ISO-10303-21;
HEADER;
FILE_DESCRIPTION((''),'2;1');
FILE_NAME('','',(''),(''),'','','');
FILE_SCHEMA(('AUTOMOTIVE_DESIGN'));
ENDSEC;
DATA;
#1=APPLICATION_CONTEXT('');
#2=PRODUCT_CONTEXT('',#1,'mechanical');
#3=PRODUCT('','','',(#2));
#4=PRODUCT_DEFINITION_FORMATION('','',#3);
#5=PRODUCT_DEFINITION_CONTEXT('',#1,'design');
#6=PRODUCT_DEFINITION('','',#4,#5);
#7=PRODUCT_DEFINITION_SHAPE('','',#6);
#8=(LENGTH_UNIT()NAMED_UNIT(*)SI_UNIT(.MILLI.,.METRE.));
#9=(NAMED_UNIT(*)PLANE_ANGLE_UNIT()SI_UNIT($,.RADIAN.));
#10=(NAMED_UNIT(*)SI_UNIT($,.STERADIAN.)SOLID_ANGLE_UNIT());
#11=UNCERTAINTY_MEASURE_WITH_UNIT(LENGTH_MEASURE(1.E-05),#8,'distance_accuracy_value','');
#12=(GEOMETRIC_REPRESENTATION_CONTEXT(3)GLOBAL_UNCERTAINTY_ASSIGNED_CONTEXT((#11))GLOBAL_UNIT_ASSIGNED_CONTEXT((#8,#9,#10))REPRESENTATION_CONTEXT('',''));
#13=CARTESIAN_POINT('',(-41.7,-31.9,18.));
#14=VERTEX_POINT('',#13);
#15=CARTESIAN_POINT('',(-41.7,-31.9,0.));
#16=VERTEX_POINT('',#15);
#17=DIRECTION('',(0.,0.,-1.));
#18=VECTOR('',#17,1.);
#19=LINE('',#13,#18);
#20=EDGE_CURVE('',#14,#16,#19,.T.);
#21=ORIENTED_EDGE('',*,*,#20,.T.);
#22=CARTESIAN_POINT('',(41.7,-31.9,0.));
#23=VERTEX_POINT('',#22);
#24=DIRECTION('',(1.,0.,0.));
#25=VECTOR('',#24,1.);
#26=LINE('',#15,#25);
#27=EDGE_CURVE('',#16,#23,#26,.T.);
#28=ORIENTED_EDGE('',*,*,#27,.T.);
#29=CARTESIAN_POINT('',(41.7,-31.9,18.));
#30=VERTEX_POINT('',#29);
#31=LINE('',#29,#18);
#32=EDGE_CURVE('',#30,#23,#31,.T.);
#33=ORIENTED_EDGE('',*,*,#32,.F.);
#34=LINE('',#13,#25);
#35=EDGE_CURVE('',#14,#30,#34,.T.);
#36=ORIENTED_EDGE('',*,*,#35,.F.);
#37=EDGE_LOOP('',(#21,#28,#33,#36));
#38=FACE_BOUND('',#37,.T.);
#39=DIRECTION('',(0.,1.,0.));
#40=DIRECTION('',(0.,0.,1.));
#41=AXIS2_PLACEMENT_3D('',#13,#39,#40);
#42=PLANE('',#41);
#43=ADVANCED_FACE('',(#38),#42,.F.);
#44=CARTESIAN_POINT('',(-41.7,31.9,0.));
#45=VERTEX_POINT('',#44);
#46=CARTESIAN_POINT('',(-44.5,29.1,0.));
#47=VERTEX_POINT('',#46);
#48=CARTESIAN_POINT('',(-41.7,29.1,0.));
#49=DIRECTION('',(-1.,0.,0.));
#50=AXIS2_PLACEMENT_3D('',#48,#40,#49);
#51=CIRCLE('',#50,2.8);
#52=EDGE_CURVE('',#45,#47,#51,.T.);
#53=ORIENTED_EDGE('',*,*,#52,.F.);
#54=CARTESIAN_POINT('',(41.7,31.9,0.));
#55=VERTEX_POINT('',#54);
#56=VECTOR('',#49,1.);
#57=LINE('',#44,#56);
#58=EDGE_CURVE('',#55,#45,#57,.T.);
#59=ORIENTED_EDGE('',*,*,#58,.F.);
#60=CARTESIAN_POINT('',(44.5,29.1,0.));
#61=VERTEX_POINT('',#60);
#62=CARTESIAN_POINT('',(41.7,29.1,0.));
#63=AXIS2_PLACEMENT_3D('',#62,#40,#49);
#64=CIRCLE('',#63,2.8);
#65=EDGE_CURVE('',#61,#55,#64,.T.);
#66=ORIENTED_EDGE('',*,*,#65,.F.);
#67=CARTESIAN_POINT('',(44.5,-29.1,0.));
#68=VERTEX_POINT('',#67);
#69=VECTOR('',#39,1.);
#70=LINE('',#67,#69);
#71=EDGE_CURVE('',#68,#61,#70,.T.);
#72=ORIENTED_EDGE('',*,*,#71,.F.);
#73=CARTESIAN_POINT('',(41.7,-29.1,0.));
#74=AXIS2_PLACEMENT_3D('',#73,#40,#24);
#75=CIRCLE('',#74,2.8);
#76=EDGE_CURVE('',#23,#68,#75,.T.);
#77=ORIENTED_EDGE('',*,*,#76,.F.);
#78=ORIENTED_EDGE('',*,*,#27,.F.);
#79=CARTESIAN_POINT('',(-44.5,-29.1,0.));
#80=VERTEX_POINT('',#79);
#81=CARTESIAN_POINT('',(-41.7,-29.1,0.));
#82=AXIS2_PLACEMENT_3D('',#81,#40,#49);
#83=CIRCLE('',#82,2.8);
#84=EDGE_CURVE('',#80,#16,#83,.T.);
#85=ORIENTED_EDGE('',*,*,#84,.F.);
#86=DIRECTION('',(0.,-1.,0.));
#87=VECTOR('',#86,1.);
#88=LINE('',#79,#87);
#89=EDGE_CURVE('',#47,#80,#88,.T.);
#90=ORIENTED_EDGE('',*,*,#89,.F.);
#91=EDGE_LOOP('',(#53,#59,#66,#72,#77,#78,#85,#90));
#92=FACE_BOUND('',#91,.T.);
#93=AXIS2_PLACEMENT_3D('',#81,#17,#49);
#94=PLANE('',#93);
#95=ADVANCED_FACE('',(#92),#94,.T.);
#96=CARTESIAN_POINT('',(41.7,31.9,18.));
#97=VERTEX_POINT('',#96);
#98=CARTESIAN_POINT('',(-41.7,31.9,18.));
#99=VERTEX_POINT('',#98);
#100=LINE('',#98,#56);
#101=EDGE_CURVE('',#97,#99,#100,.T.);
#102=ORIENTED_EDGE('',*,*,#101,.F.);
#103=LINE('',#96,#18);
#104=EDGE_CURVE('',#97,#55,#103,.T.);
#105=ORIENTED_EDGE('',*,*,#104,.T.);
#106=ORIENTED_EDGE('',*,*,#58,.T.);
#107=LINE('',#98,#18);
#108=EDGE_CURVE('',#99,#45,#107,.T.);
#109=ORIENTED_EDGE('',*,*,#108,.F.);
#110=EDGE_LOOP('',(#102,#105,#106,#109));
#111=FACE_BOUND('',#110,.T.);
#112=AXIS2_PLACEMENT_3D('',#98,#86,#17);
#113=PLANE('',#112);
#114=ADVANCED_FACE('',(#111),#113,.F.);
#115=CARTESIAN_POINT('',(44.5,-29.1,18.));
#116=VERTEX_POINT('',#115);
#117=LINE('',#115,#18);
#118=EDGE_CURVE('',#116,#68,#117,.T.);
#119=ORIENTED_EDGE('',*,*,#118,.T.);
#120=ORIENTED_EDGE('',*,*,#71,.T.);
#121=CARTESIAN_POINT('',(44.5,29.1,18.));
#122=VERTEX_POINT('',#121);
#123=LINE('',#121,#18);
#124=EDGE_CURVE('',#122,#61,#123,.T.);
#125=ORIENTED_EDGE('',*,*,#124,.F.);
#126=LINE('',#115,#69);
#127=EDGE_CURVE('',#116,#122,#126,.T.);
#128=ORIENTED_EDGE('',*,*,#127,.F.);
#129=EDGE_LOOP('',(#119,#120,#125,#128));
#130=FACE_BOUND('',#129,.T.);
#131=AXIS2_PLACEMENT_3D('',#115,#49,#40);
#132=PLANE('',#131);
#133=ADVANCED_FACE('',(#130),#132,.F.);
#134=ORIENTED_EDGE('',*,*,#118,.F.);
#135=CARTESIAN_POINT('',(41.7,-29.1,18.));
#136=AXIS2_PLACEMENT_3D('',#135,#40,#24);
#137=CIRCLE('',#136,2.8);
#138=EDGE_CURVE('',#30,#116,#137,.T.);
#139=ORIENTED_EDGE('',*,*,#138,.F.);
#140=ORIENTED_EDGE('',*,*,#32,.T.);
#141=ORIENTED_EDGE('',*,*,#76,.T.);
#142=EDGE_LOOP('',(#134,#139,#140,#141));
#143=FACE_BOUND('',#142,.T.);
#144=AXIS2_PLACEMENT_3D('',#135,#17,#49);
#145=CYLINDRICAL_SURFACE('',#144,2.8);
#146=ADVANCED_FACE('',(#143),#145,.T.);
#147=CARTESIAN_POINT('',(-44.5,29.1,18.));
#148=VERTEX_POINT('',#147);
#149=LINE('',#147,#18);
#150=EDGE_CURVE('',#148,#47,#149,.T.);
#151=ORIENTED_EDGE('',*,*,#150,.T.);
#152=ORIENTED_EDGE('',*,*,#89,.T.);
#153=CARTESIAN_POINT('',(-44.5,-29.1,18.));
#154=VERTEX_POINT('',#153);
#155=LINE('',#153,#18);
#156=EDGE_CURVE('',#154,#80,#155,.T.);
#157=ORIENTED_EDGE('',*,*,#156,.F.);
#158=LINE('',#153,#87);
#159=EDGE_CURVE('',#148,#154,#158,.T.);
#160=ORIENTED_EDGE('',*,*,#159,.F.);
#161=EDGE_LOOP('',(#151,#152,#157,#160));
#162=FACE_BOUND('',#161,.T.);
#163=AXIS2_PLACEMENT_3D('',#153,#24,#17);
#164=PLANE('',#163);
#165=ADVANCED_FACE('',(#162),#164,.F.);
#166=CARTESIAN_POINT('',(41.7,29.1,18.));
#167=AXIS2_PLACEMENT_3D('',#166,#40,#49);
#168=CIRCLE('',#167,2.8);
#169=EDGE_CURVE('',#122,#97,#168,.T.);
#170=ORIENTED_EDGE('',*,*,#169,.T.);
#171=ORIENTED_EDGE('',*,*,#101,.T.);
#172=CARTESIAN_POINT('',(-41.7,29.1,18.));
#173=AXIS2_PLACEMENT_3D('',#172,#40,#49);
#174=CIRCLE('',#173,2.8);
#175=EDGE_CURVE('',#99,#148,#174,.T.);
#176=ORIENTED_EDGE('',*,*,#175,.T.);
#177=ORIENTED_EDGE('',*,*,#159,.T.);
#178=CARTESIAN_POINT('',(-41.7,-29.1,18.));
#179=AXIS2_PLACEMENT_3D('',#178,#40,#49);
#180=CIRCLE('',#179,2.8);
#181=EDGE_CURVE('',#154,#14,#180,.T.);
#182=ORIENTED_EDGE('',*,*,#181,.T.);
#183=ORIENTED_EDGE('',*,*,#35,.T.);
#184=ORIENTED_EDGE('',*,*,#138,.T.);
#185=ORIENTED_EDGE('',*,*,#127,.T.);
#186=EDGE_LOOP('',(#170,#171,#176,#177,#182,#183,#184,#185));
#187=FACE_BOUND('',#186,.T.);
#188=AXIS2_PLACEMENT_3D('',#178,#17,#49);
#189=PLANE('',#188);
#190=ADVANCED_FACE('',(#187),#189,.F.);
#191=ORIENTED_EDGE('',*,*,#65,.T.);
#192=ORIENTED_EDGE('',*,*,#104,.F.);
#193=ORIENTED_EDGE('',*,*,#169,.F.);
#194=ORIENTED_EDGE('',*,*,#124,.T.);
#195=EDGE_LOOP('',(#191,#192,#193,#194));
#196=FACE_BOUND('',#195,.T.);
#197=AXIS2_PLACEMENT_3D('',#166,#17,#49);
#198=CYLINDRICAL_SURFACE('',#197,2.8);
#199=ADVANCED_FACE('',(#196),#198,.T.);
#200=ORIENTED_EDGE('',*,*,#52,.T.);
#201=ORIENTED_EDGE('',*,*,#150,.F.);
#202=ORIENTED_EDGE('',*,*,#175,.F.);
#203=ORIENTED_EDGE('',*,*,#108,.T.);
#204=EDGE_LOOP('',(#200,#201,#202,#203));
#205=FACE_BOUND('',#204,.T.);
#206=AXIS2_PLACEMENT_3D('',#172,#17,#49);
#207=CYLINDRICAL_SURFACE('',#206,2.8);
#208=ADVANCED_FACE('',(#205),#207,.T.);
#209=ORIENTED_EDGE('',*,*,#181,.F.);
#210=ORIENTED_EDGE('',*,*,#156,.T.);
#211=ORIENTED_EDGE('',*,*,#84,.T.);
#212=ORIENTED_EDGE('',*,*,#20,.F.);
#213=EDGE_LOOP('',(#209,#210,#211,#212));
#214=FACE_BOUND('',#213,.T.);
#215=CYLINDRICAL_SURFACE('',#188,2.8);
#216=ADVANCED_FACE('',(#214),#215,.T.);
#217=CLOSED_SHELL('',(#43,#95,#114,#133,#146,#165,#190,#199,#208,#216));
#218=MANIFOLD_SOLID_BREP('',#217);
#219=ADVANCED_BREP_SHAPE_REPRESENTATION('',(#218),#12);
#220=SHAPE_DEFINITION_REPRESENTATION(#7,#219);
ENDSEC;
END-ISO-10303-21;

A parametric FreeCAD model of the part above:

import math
import FreeCAD as App
import Part
import Sketcher

V = App.Vector

doc = App.newDocument("Part")
body = doc.addObject("PartDesign::Body", "Body")

# Sketch on XY plane
sketch1 = doc.addObject("Sketcher::SketchObject", "Sketch")
body.addObject(sketch1)
sketch1.AttachmentSupport = (doc.XY_Plane, [""])
sketch1.MapMode = "FlatFace"
sketch1.addGeometry([
    Part.LineSegment(V(-41.7, -31.9, 0), V(41.7, -31.9, 0)),  # 0
    Part.ArcOfCircle(Part.Circle(V(41.7, -29.1, 0), V(0, 0, 1), 2.8), math.radians(-90), math.radians(0)),  # 1
    Part.LineSegment(V(44.5, -29.1, 0), V(44.5, 29.1, 0)),  # 2
    Part.ArcOfCircle(Part.Circle(V(41.7, 29.1, 0), V(0, 0, 1), 2.8), math.radians(0), math.radians(90)),  # 3
    Part.LineSegment(V(41.7, 31.9, 0), V(-41.7, 31.9, 0)),  # 4
    Part.ArcOfCircle(Part.Circle(V(-41.7, 29.1, 0), V(0, 0, 1), 2.8), math.radians(90), math.radians(180)),  # 5
    Part.LineSegment(V(-44.5, 29.1, 0), V(-44.5, -29.1, 0)),  # 6
    Part.ArcOfCircle(Part.Circle(V(-41.7, -29.1, 0), V(0, 0, 1), 2.8), math.radians(-180), math.radians(-90)),  # 7
], False)
sketch1.addConstraint([
    Sketcher.Constraint("Tangent", 0, 2, 1, 1),
    Sketcher.Constraint("Tangent", 1, 2, 2, 1),
    Sketcher.Constraint("Tangent", 2, 2, 3, 1),
    Sketcher.Constraint("Tangent", 3, 2, 4, 1),
    Sketcher.Constraint("Tangent", 4, 2, 5, 1),
    Sketcher.Constraint("Tangent", 5, 2, 6, 1),
    Sketcher.Constraint("Tangent", 6, 2, 7, 1),
    Sketcher.Constraint("Tangent", 7, 2, 0, 1),
    Sketcher.Constraint("Horizontal", 0),
    Sketcher.Constraint("Vertical", 2),
    Sketcher.Constraint("Horizontal", 4),
    Sketcher.Constraint("Vertical", 6),
    Sketcher.Constraint("Equal", 1, 3),
    Sketcher.Constraint("Equal", 3, 5),
    Sketcher.Constraint("Equal", 5, 7),
    Sketcher.Constraint("Symmetric", 1, 3, 5, 3, -1, 1),
    Sketcher.Constraint("Radius", 1, 2.8),
    Sketcher.Constraint("DistanceX", 0, 1, 0, 2, 83.4),
    Sketcher.Constraint("DistanceY", 2, 1, 2, 2, 58.2),
])
pad1 = doc.addObject("PartDesign::Pad", "Pad")
body.addObject(pad1)
pad1.Profile = sketch1
pad1.Length = 18

doc.recompute()
